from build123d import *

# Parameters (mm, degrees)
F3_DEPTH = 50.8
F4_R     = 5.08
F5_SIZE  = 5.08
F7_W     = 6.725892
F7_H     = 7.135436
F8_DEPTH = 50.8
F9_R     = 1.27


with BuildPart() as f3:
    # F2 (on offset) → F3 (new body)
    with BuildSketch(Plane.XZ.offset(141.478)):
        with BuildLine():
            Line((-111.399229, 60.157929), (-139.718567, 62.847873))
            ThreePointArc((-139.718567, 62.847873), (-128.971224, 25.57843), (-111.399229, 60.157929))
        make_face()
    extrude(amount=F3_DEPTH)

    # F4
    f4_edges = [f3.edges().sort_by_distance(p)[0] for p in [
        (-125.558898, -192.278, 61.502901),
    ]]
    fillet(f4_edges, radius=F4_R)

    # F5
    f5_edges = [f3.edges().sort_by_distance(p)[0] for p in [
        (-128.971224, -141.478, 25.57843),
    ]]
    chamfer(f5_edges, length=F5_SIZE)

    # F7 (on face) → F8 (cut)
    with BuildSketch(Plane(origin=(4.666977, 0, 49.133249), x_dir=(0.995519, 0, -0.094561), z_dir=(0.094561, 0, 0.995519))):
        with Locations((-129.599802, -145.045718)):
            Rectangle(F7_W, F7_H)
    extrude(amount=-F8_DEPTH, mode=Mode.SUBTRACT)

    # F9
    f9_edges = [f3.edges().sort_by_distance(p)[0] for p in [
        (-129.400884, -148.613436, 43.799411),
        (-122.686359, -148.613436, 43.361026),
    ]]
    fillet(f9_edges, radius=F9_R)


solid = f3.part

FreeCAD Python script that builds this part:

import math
import FreeCAD as App
import Part
import Sketcher

V = App.Vector
Q = App.Units.Quantity


def edges_at(feature, points):
    """Names of the edges that pass closest to the given points."""
    edges = feature.Shape.Edges
    near = lambda p: min(range(len(edges)), key=lambda i: edges[i].distToShape(Part.Vertex(*p))[0])
    return sorted({f"Edge{near(p) + 1}" for p in points})


def add_polygon(sketch, points):
    """Adds a closed chain of lines whose ends are joined by coincident constraints."""
    first, n = sketch.GeometryCount, len(points)
    for a, b in zip(points, points[1:] + points[:1]):
        sketch.addGeometry(Part.LineSegment(App.Vector(*a, 0), App.Vector(*b, 0)), False)
    for i in range(n):
        sketch.addConstraint(Sketcher.Constraint("Coincident", first + i, 2, first + (i + 1) % n, 1))

doc = App.newDocument("Part")
body = doc.addObject("PartDesign::Body", "Body")

# Sketch on XZ plane
sketch1 = doc.addObject("Sketcher::SketchObject", "Sketch")
body.addObject(sketch1)
sketch1.AttachmentSupport = (doc.XZ_Plane, [""])
sketch1.MapMode = "FlatFace"
sketch1.AttachmentOffset = App.Placement(V(0, 0, 5.57 * 25.4), App.Rotation())
sketch1.addGeometry(Part.LineSegment(V(-111, 60, 0), V(-140, 63, 0)), False)
sketch1.addGeometry(Part.ArcOfCircle(Part.Circle(V(-127, 46, 0), V(0, 0, 1), 21), math.radians(128), math.radians(402)), False)
sketch1.addConstraint(Sketcher.Constraint("Coincident", 0, 1, 1, 2))
sketch1.addConstraint(Sketcher.Constraint("Coincident", 1, 1, 0, 2))
sketch1.addConstraint(Sketcher.Constraint("DistanceX", 1, 3, -1, 1, Q("5 in")))
sketch1.addConstraint(Sketcher.Constraint("Radius", 1, Q("20.846169 mm")))
sketch1.addConstraint(Sketcher.Constraint("DistanceY", -1, 1, 1, 3, Q("46.33119 mm")))
sketch1.addConstraint(Sketcher.Constraint("DistanceX", 0, 1, -1, 1, Q("111.399229 mm")))
sketch1.addConstraint(Sketcher.Constraint("Distance", 0, Q("28.446805 mm")))
pad1 = doc.addObject("PartDesign::Pad", "Pad")
body.addObject(pad1)
pad1.Profile = sketch1
pad1.Length = Q("2 in")
doc.recompute()

fillet = doc.addObject("PartDesign::Fillet", "Fillet")
body.addObject(fillet)
fillet.Base = (pad1, edges_at(pad1, [(-125.559, -192.278, 61.503)]))
fillet.Radius = Q("0.2 in")
doc.recompute()

chamfer = doc.addObject("PartDesign::Chamfer", "Chamfer")
body.addObject(chamfer)
chamfer.Base = (fillet, edges_at(fillet, [(-128.971, -141.478, 25.578)]))
chamfer.Size = Q("0.2 in")

# Sketch on an angled plane
sketch2 = doc.addObject("Sketcher::SketchObject", "Sketch001")
body.addObject(sketch2)
sketch2.Placement = App.Placement(V(4.666977, 0, 49.133249), App.Rotation(V(0.995519069, 0, -0.094561007), V(0, 1.000000001, 0), V(0.094561007, 0, 0.995519069), "ZXY"))
add_polygon(sketch2, [(-133, -141), (-133, -149), (-126, -149), (-126, -141)])  # lines 0-3
sketch2.addConstraint(Sketcher.Constraint("Vertical", 0))
sketch2.addConstraint(Sketcher.Constraint("Horizontal", 1))
sketch2.addConstraint(Sketcher.Constraint("Vertical", 2))
sketch2.addConstraint(Sketcher.Constraint("Horizontal", 3))
sketch2.addConstraint(Sketcher.Constraint("DistanceY", 2, 2, -1, 1, Q("5.57 in")))
sketch2.addConstraint(Sketcher.Constraint("DistanceX", 1, 1, 1, 2, Q("6.725892 mm")))
sketch2.addConstraint(Sketcher.Constraint("DistanceY", 0, 2, 0, 1, Q("7.135436 mm")))
sketch2.addConstraint(Sketcher.Constraint("DistanceX", 0, 2, -1, 1, Q("132.962748 mm")))
pocket1 = doc.addObject("PartDesign::Pocket", "Pocket")
body.addObject(pocket1)
pocket1.Profile = sketch2
pocket1.Length = Q("2 in")
doc.recompute()

fillet2 = doc.addObject("PartDesign::Fillet", "Fillet001")
body.addObject(fillet2)
fillet2.Base = (pocket1, edges_at(pocket1, [(-129.401, -148.613, 43.799), (-122.686, -148.613, 43.361)]))
fillet2.Radius = Q("0.05 in")

doc.recompute()
